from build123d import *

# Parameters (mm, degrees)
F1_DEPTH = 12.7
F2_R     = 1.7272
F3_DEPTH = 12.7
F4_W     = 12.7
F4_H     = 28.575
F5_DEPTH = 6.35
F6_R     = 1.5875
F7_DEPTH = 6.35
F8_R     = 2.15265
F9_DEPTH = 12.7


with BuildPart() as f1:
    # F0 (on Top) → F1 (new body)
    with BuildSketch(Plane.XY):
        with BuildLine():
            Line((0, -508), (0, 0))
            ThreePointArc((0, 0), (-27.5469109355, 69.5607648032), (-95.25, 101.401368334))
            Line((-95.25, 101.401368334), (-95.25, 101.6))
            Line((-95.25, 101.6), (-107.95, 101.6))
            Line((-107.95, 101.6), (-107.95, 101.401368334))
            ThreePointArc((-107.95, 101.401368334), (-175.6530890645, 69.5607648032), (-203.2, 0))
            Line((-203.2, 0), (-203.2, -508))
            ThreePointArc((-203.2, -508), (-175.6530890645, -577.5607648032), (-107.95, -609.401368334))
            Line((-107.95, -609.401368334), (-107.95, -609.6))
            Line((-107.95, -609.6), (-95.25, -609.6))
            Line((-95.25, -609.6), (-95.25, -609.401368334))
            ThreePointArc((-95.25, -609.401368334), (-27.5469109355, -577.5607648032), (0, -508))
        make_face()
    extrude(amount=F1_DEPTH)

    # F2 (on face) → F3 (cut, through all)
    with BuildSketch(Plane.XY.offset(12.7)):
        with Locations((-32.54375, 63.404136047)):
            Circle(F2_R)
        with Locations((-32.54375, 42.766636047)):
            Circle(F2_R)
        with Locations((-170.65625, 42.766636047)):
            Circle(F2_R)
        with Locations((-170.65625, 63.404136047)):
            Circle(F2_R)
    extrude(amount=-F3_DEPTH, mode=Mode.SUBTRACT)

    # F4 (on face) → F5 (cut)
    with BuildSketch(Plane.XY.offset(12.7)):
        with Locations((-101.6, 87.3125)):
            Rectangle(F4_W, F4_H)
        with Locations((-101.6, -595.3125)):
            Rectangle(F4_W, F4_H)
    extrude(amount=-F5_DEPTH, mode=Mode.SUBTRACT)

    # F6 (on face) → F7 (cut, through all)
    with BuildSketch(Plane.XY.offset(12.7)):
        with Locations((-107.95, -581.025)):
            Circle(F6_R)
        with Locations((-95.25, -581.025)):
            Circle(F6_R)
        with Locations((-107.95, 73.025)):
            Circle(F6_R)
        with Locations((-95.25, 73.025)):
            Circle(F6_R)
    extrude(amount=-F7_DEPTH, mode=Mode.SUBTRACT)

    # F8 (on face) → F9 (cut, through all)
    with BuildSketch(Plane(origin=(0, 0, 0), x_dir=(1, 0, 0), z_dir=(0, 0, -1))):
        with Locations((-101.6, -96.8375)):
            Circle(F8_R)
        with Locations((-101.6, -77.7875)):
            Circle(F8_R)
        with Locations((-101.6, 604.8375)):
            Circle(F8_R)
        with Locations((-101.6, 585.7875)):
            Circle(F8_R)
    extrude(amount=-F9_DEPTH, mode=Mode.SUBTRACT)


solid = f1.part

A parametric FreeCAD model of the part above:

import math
import FreeCAD as App
import Part
import Sketcher

V = App.Vector
Q = App.Units.Quantity


def add_polygon(sketch, points):
    """Adds a closed chain of lines whose ends are joined by coincident constraints."""
    first, n = sketch.GeometryCount, len(points)
    for a, b in zip(points, points[1:] + points[:1]):
        sketch.addGeometry(Part.LineSegment(App.Vector(*a, 0), App.Vector(*b, 0)), False)
    for i in range(n):
        sketch.addConstraint(Sketcher.Constraint("Coincident", first + i, 2, first + (i + 1) % n, 1))

doc = App.newDocument("Part")
body = doc.addObject("PartDesign::Body", "Body")

# Sketch on XY plane
sketch1 = body.newObject("Sketcher::SketchObject", "Sketch")
sketch1.AttachmentSupport = (doc.getObject("XY_Plane"), [""])
sketch1.MapMode = "FlatFace"
sketch1.addGeometry(Part.LineSegment(V(0, -508, 0), V(0, 0, 0)), False)
sketch1.addGeometry(Part.ArcOfCircle(Part.Circle(V(-101.6, 0, 0), V(0, 0, 1), 101.6), math.radians(0), math.radians(86.416678)), False)
sketch1.addGeometry(Part.LineSegment(V(-95.25, 101.401368, 0), V(-95.25, 101.6, 0)), False)
sketch1.addGeometry(Part.LineSegment(V(-95.25, 101.6, 0), V(-107.95, 101.6, 0)), False)
sketch1.addGeometry(Part.LineSegment(V(-107.95, 101.6, 0), V(-107.95, 101.401368, 0)), False)
sketch1.addGeometry(Part.ArcOfCircle(Part.Circle(V(-101.6, 0, 0), V(0, 0, 1), 101.6), math.radians(93.583322), math.radians(180)), False)
sketch1.addGeometry(Part.LineSegment(V(-203.2, 0, 0), V(-203.2, -508, 0)), False)
sketch1.addGeometry(Part.ArcOfCircle(Part.Circle(V(-101.6, -508, 0), V(0, 0, 1), 101.6), math.radians(180), math.radians(266.416678)), False)
sketch1.addGeometry(Part.LineSegment(V(-107.95, -609.401368, 0), V(-107.95, -609.6, 0)), False)
sketch1.addGeometry(Part.LineSegment(V(-107.95, -609.6, 0), V(-95.25, -609.6, 0)), False)
sketch1.addGeometry(Part.LineSegment(V(-95.25, -609.6, 0), V(-95.25, -609.401368, 0)), False)
sketch1.addGeometry(Part.ArcOfCircle(Part.Circle(V(-101.6, -508, 0), V(0, 0, 1), 101.6), math.radians(-86.416678), math.radians(0)), False)
sketch1.addConstraint(Sketcher.Constraint("Tangent", 0, 2, 1, 1))
sketch1.addConstraint(Sketcher.Constraint("Coincident", 1, 2, 2, 1))
sketch1.addConstraint(Sketcher.Constraint("Coincident", 2, 2, 3, 1))
sketch1.addConstraint(Sketcher.Constraint("Coincident", 3, 2, 4, 1))
sketch1.addConstraint(Sketcher.Constraint("Coincident", 4, 2, 5, 1))
sketch1.addConstraint(Sketcher.Constraint("Tangent", 5, 2, 6, 1))
sketch1.addConstraint(Sketcher.Constraint("Tangent", 6, 2, 7, 1))
sketch1.addConstraint(Sketcher.Constraint("Coincident", 7, 2, 8, 1))
sketch1.addConstraint(Sketcher.Constraint("Coincident", 8, 2, 9, 1))
sketch1.addConstraint(Sketcher.Constraint("Coincident", 9, 2, 10, 1))
sketch1.addConstraint(Sketcher.Constraint("Coincident", 10, 2, 11, 1))
sketch1.addConstraint(Sketcher.Constraint("Tangent", 11, 2, 0, 1))
sketch1.addConstraint(Sketcher.Constraint("Vertical", 0))
sketch1.addConstraint(Sketcher.Constraint("Vertical", 2))
sketch1.addConstraint(Sketcher.Constraint("Horizontal", 3))
sketch1.addConstraint(Sketcher.Constraint("Vertical", 4))
sketch1.addConstraint(Sketcher.Constraint("Vertical", 6))
sketch1.addConstraint(Sketcher.Constraint("Vertical", 8))
sketch1.addConstraint(Sketcher.Constraint("Horizontal", 9))
sketch1.addConstraint(Sketcher.Constraint("Vertical", 10))
sketch1.addConstraint(Sketcher.Constraint("Coincident", 0, 2, -1, 1))
sketch1.addConstraint(Sketcher.Constraint("Coincident", 5, 3, 1, 3))
sketch1.addConstraint(Sketcher.Constraint("Coincident", 11, 3, 7, 3))
sketch1.addConstraint(Sketcher.Constraint("Equal", 1, 5))
sketch1.addConstraint(Sketcher.Constraint("Equal", 5, 7))
sketch1.addConstraint(Sketcher.Constraint("Horizontal", 1, 2, 4, 2))
sketch1.addConstraint(Sketcher.Constraint("Horizontal", 7, 2, 10, 2))
sketch1.addConstraint(Sketcher.Constraint("Vertical", 4, 2, 7, 2))
sketch1.addConstraint(Sketcher.Constraint("Equal", 4, 8))
sketch1.addConstraint(Sketcher.Constraint("Radius", 1, Q("4 in")))
sketch1.addConstraint(Sketcher.Constraint("DistanceY", 0, 1, 0, 2, Q("20 in")))
sketch1.addConstraint(Sketcher.Constraint("DistanceX", 3, 2, 3, 1, Q("0.5 in")))
sketch1.addConstraint(Sketcher.Constraint("DistanceY", -1, 1, 2, 2, Q("4 in")))
pad1 = body.newObject("PartDesign::Pad", "Pad")
pad1.Profile = sketch1
pad1.Length = Q("0.5 in")

# Sketch on XY plane
sketch2 = body.newObject("Sketcher::SketchObject", "Sketch001")
sketch2.AttachmentSupport = (doc.getObject("XY_Plane"), [""])
sketch2.MapMode = "FlatFace"
sketch2.AttachmentOffset = App.Placement(V(0, 0, 0.5 * 25.4), App.Rotation())
sketch2.addGeometry(Part.Circle(V(-32.54375, 63.404136, 0), V(0, 0, 1), 1.7272), False)
sketch2.addGeometry(Part.Circle(V(-32.54375, 42.766636, 0), V(0, 0, 1), 1.7272), False)
sketch2.addGeometry(Part.Circle(V(-170.65625, 42.766636, 0), V(0, 0, 1), 1.7272), False)
sketch2.addGeometry(Part.Circle(V(-170.65625, 63.404136, 0), V(0, 0, 1), 1.7272), False)
sketch2.addConstraint(Sketcher.Constraint("Equal", 0, 1))
sketch2.addConstraint(Sketcher.Constraint("Equal", 1, 2))
sketch2.addConstraint(Sketcher.Constraint("Equal", 2, 3))
sketch2.addConstraint(Sketcher.Constraint("Horizontal", 1, 3, 2, 3))
sketch2.addConstraint(Sketcher.Constraint("Horizontal", 0, 3, 3, 3))
sketch2.addConstraint(Sketcher.Constraint("Vertical", 0, 3, 1, 3))
sketch2.addConstraint(Sketcher.Constraint("Vertical", 2, 3, 3, 3))
sketch2.addConstraint(Sketcher.Constraint("Diameter", 0, Q("0.136 in")))
sketch2.addConstraint(Sketcher.Constraint("DistanceX", 0, 3, -1, 1, Q("1.28125 in")))
sketch2.addConstraint(Sketcher.Constraint("DistanceX", 2, 3, -1, 1, Q("6.71875 in")))
sketch2.addConstraint(Sketcher.Constraint("DistanceY", 1, 3, 0, 3, Q("0.8125 in")))
sketch2.addConstraint(Sketcher.Constraint("DistanceY", -1, 1, 0, 3, 63.404136))
pocket1 = body.newObject("PartDesign::Pocket", "Pocket")
pocket1.Profile = sketch2
pocket1.Type = "ThroughAll"

# Sketch on XY plane
sketch3 = body.newObject("Sketcher::SketchObject", "Sketch002")
sketch3.AttachmentSupport = (doc.getObject("XY_Plane"), [""])
sketch3.MapMode = "FlatFace"
sketch3.AttachmentOffset = App.Placement(V(0, 0, 0.5 * 25.4), App.Rotation())
add_polygon(sketch3, [(-107.95, 101.6), (-107.95, 73.025), (-95.25, 73.025), (-95.25, 101.6)])  # lines 0-3
add_polygon(sketch3, [(-107.95, -581.025), (-107.95, -609.6), (-95.25, -609.6), (-95.25, -581.025)])  # lines 4-7
sketch3.addConstraint(Sketcher.Constraint("Vertical", 0))
sketch3.addConstraint(Sketcher.Constraint("Horizontal", 1))
sketch3.addConstraint(Sketcher.Constraint("Vertical", 2))
sketch3.addConstraint(Sketcher.Constraint("Horizontal", 3))
sketch3.addConstraint(Sketcher.Constraint("Vertical", 4))
sketch3.addConstraint(Sketcher.Constraint("Horizontal", 5))
sketch3.addConstraint(Sketcher.Constraint("Vertical", 6))
sketch3.addConstraint(Sketcher.Constraint("Horizontal", 7))
sketch3.addConstraint(Sketcher.Constraint("Vertical", 3, 2, 4, 2))
sketch3.addConstraint(Sketcher.Constraint("Vertical", 2, 2, 5, 2))
sketch3.addConstraint(Sketcher.Constraint("Equal", 2, 4))
sketch3.addConstraint(Sketcher.Constraint("DistanceX", 1, 1, 1, 2, Q("0.5 in")))
sketch3.addConstraint(Sketcher.Constraint("DistanceY", -1, 1, 2, 2, Q("4 in")))
sketch3.addConstraint(Sketcher.Constraint("DistanceY", 4, 2, -1, 1, Q("24 in")))
sketch3.addConstraint(Sketcher.Constraint("DistanceY", 0, 2, 0, 1, Q("1.125 in")))
sketch3.addConstraint(Sketcher.Constraint("DistanceX", 0, 2, -1, 1, Q("4.25 in")))
pocket2 = body.newObject("PartDesign::Pocket", "Pocket001")
pocket2.Profile = sketch3
pocket2.Length = Q("0.25 in")

# Sketch on XY plane
sketch4 = body.newObject("Sketcher::SketchObject", "Sketch003")
sketch4.AttachmentSupport = (doc.getObject("XY_Plane"), [""])
sketch4.MapMode = "FlatFace"
sketch4.AttachmentOffset = App.Placement(V(0, 0, 0.5 * 25.4), App.Rotation())
sketch4.addGeometry(Part.Circle(V(-107.95, -581.025, 0), V(0, 0, 1), 1.5875), False)
sketch4.addGeometry(Part.Circle(V(-95.25, -581.025, 0), V(0, 0, 1), 1.5875), False)
sketch4.addGeometry(Part.Circle(V(-107.95, 73.025, 0), V(0, 0, 1), 1.5875), False)
sketch4.addGeometry(Part.Circle(V(-95.25, 73.025, 0), V(0, 0, 1), 1.5875), False)
sketch4.addConstraint(Sketcher.Constraint("Equal", 0, 1))
sketch4.addConstraint(Sketcher.Constraint("Equal", 1, 2))
sketch4.addConstraint(Sketcher.Constraint("Equal", 2, 3))
sketch4.addConstraint(Sketcher.Constraint("Horizontal", 0, 3, 1, 3))
sketch4.addConstraint(Sketcher.Constraint("Horizontal", 2, 3, 3, 3))
sketch4.addConstraint(Sketcher.Constraint("Vertical", 0, 3, 2, 3))
sketch4.addConstraint(Sketcher.Constraint("Vertical", 1, 3, 3, 3))
sketch4.addConstraint(Sketcher.Constraint("Diameter", 0, Q("0.125 in")))
sketch4.addConstraint(Sketcher.Constraint("DistanceX", 0, 3, 1, 3, Q("0.5 in")))
sketch4.addConstraint(Sketcher.Constraint("DistanceX", 0, 3, -1, 1, Q("4.25 in")))
sketch4.addConstraint(Sketcher.Constraint("DistanceY", 0, 3, 2, 3, Q("25.75 in")))
sketch4.addConstraint(Sketcher.Constraint("DistanceY", 0, 3, -1, 1, Q("22.875 in")))
pocket3 = body.newObject("PartDesign::Pocket", "Pocket002")
pocket3.Profile = sketch4
pocket3.Length = Q("0.25 in")

# Sketch on XY plane
sketch5 = body.newObject("Sketcher::SketchObject", "Sketch004")
sketch5.AttachmentSupport = (doc.getObject("XY_Plane"), [""])
sketch5.MapMode = "FlatFace"
sketch5.addGeometry(Part.Circle(V(-101.6, 96.8375, 0), V(0, 0, 1), 2.15265), False)
sketch5.addGeometry(Part.Circle(V(-101.6, 77.7875, 0), V(0, 0, 1), 2.15265), False)
sketch5.addGeometry(Part.Circle(V(-101.6, -604.8375, 0), V(0, 0, 1), 2.15265), False)
sketch5.addGeometry(Part.Circle(V(-101.6, -585.7875, 0), V(0, 0, 1), 2.15265), False)
sketch5.addConstraint(Sketcher.Constraint("Equal", 0, 1))
sketch5.addConstraint(Sketcher.Constraint("Equal", 1, 2))
sketch5.addConstraint(Sketcher.Constraint("Equal", 2, 3))
sketch5.addConstraint(Sketcher.Constraint("Vertical", 0, 3, 1, 3))
sketch5.addConstraint(Sketcher.Constraint("Vertical", 1, 3, 2, 3))
sketch5.addConstraint(Sketcher.Constraint("Vertical", 2, 3, 3, 3))
sketch5.addConstraint(Sketcher.Constraint("DistanceX", 0, 3, -1, 1, Q("4 in")))
sketch5.addConstraint(Sketcher.Constraint("Diameter", 0, Q("0.1695 in")))
sketch5.addConstraint(Sketcher.Constraint("DistanceY", 1, 3, 0, 3, Q("0.75 in")))
sketch5.addConstraint(Sketcher.Constraint("DistanceY", 2, 3, 3, 3, Q("0.75 in")))
sketch5.addConstraint(Sketcher.Constraint("DistanceY", -1, 1, 0, 3, Q("3.8125 in")))
sketch5.addConstraint(Sketcher.Constraint("DistanceY", 2, 3, -1, 1, Q("23.8125 in")))
pocket4 = body.newObject("PartDesign::Pocket", "Pocket003")
pocket4.Profile = sketch5
pocket4.Type = "ThroughAll"
pocket4.Reversed = True

doc.recompute()
